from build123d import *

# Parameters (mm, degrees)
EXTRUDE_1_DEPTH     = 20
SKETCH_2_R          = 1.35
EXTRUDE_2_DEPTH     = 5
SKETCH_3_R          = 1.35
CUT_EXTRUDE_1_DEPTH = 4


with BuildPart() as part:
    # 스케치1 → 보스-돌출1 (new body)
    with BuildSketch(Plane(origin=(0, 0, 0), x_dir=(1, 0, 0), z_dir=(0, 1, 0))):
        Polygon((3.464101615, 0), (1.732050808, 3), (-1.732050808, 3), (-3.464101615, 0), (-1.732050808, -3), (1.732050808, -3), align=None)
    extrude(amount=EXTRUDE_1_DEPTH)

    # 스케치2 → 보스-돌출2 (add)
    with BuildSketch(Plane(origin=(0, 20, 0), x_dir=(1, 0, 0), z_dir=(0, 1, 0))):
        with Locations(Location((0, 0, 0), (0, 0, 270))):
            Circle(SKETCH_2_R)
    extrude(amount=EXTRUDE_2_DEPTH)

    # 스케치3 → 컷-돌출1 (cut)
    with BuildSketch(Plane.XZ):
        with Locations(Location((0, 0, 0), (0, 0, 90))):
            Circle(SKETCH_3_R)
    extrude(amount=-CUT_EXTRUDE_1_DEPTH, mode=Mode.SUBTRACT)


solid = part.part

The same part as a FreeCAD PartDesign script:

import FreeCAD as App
import Part
import Sketcher
Q = App.Units.Quantity

doc = App.newDocument("Part")
body = doc.addObject("PartDesign::Body", "Body")

sketch1 = body.newObject("Sketcher::SketchObject", "Sketch")
sketch1.AttachmentSupport = (doc.getObject("XZ_Plane"), [""])
sketch1.MapMode = "FlatFace"
sketch1.addGeometry([
    Part.LineSegment(App.Vector(3.5, 0, 0), App.Vector(1.7, -3, 0)),
    Part.LineSegment(App.Vector(1.7, -3, 0), App.Vector(-1.7, -3, 0)),
    Part.LineSegment(App.Vector(-1.7, -3, 0), App.Vector(-3.5, 0, 0)),
    Part.LineSegment(App.Vector(-3.5, 0, 0), App.Vector(-1.7, 3, 0)),
    Part.LineSegment(App.Vector(-1.7, 3, 0), App.Vector(1.7, 3, 0)),
    Part.LineSegment(App.Vector(1.7, 3, 0), App.Vector(3.5, 0, 0)),
], False)
sketch1.addConstraint([
    Sketcher.Constraint("Coincident", 0, 2, 1, 1),
    Sketcher.Constraint("Coincident", 1, 2, 2, 1),
    Sketcher.Constraint("Coincident", 2, 2, 3, 1),
    Sketcher.Constraint("Coincident", 3, 2, 4, 1),
    Sketcher.Constraint("Coincident", 4, 2, 5, 1),
    Sketcher.Constraint("Coincident", 5, 2, 0, 1),
    Sketcher.Constraint("Horizontal", 1),
    Sketcher.Constraint("Horizontal", 4),
    Sketcher.Constraint("Symmetric", 0, 2, 3, 2, -1, 1),
    Sketcher.Constraint("Symmetric", 2, 2, 5, 2, -1, 1),
    Sketcher.Constraint("PointOnObject", 2, 2, -1),
    Sketcher.Constraint("Parallel", 2, 5),
    Sketcher.Constraint("Vertical", 1, 2, 3, 2),
    Sketcher.Constraint("Angle", 0, Q("-120 deg")),
    Sketcher.Constraint("DistanceY", 0, 2, -1, 1, 3.0),
    Sketcher.Constraint("DistanceX", 1, 2, 1, 1, 3.464102),
])
pad1 = body.newObject("PartDesign::Pad", "Pad")
pad1.Profile = sketch1
pad1.Length = 20
pad1.Reversed = True

sketch2 = body.newObject("Sketcher::SketchObject", "Sketch001")
sketch2.AttachmentSupport = (doc.getObject("XZ_Plane"), [""])
sketch2.MapMode = "FlatFace"
sketch2.AttachmentOffset = App.Placement(App.Vector(0, 0, -20), App.Rotation())
sketch2.addGeometry(Part.Circle(App.Vector(0, 0, 0), App.Vector(0, 0, 1), 1.4), False)
sketch2.addConstraint([
    Sketcher.Constraint("Coincident", 0, 3, -1, 1),
    Sketcher.Constraint("Diameter", 0, 2.7),
])
pad2 = body.newObject("PartDesign::Pad", "Pad001")
pad2.Profile = sketch2
pad2.Length = 5
pad2.Reversed = True

sketch3 = body.newObject("Sketcher::SketchObject", "Sketch002")
sketch3.AttachmentSupport = (doc.getObject("XZ_Plane"), [""])
sketch3.MapMode = "FlatFace"
sketch3.addGeometry(Part.Circle(App.Vector(0, 0, 0), App.Vector(0, 0, 1), 1.4), False)
sketch3.addConstraint([
    Sketcher.Constraint("Coincident", 0, 3, -1, 1),
    Sketcher.Constraint("Diameter", 0, 2.7),
])
pocket1 = body.newObject("PartDesign::Pocket", "Pocket")
pocket1.Profile = sketch3
pocket1.Length = 4

doc.recompute()
